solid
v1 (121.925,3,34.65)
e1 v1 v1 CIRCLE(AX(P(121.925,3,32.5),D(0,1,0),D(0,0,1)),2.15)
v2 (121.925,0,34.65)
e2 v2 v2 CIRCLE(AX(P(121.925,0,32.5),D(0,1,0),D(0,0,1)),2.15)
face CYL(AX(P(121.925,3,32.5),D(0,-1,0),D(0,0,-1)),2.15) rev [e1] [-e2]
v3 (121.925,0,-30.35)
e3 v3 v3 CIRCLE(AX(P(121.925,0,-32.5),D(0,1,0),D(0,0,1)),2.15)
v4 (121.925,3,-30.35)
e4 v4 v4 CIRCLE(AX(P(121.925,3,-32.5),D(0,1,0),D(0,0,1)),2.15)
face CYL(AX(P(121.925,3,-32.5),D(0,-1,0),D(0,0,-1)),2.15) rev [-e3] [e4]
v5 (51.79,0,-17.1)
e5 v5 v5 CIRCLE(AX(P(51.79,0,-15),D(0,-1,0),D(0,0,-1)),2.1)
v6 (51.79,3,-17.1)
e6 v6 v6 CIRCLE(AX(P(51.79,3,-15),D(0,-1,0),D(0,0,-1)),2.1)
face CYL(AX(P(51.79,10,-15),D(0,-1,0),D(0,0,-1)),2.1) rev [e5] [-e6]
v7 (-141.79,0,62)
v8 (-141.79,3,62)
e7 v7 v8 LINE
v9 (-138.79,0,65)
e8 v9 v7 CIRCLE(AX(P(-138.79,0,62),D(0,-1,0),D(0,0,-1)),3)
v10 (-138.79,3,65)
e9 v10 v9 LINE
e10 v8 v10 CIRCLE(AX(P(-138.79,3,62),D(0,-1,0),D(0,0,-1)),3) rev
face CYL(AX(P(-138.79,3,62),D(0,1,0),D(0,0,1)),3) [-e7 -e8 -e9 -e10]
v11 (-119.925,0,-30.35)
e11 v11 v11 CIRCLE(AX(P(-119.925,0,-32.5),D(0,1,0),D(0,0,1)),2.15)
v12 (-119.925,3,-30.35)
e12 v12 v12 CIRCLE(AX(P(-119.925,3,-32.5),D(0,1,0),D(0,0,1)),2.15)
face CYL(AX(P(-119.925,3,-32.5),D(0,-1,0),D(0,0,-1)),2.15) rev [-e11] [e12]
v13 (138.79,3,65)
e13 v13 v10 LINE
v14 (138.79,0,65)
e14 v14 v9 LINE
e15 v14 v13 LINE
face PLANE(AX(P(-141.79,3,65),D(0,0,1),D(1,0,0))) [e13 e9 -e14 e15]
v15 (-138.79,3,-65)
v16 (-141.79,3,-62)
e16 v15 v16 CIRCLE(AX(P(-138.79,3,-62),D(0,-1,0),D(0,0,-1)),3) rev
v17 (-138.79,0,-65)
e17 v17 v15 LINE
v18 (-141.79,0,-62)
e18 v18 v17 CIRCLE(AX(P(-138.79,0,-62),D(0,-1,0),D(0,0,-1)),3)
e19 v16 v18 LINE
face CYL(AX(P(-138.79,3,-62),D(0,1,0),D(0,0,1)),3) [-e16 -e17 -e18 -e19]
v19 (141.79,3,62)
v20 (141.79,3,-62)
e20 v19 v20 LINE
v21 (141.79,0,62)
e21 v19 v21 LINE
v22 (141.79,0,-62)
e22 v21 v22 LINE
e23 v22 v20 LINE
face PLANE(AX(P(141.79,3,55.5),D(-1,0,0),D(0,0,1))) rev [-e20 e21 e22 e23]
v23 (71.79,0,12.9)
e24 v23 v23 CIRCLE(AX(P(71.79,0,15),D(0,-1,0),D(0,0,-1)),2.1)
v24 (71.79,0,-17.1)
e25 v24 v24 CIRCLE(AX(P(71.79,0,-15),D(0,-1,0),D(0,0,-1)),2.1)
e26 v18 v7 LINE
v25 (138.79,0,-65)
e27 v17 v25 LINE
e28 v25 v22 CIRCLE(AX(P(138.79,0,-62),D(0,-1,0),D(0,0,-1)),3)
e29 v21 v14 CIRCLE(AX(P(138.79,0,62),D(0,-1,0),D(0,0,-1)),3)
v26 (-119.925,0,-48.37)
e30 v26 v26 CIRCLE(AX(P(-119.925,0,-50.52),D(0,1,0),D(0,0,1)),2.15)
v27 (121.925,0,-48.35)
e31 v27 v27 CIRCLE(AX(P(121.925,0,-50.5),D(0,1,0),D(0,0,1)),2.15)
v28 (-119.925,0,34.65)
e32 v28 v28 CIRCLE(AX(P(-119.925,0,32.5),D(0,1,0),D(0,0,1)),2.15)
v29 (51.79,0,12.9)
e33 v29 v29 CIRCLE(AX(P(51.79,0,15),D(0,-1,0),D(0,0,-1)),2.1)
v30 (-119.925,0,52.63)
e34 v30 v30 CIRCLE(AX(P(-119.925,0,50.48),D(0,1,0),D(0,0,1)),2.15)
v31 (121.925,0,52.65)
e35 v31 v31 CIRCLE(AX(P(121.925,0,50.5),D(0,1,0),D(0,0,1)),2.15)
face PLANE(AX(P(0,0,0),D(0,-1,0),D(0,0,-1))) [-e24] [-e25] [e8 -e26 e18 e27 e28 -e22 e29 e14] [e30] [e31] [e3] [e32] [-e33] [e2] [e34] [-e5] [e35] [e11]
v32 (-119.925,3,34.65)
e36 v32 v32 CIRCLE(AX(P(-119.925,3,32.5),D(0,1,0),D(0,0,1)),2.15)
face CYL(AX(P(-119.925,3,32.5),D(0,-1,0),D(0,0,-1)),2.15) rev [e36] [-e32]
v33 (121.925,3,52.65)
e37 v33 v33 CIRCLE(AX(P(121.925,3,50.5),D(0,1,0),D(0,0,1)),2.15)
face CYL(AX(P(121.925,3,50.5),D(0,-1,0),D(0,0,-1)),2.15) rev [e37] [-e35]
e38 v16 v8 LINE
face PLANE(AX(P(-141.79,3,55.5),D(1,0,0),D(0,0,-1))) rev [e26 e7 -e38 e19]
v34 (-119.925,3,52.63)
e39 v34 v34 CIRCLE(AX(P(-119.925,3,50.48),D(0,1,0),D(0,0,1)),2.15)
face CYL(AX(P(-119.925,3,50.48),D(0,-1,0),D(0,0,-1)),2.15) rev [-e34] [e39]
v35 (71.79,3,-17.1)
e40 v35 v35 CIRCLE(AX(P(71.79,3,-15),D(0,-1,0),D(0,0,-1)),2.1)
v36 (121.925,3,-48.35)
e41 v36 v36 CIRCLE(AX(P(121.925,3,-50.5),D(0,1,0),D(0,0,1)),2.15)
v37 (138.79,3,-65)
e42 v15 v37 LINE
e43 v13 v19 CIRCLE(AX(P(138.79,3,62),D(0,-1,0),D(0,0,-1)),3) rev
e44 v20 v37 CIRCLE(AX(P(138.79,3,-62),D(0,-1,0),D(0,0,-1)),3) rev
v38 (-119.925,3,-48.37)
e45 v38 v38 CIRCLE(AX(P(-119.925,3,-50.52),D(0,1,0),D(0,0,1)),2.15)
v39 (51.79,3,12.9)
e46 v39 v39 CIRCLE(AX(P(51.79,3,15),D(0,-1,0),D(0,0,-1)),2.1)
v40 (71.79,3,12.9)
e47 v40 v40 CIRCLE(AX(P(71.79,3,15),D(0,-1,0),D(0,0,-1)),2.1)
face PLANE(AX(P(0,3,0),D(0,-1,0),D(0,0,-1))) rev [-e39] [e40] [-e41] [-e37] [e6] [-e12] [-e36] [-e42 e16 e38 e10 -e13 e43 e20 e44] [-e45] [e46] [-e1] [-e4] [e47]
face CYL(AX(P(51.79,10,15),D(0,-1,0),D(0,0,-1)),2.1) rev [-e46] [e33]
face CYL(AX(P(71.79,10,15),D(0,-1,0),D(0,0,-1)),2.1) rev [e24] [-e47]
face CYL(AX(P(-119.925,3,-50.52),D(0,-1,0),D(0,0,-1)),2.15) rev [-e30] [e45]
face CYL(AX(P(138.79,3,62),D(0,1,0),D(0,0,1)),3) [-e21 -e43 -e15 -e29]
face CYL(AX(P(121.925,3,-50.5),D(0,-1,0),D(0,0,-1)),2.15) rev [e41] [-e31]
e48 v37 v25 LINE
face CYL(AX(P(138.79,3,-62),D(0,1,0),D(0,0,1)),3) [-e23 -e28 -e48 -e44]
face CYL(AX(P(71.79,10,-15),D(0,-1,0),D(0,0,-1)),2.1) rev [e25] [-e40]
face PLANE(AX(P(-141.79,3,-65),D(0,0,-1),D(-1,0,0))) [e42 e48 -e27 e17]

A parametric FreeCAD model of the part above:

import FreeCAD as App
import Part
import Sketcher

V = App.Vector
Q = App.Units.Quantity


def edges_at(feature, points):
    """Names of the edges that pass closest to the given points."""
    edges = feature.Shape.Edges
    near = lambda p: min(range(len(edges)), key=lambda i: edges[i].distToShape(Part.Vertex(*p))[0])
    return sorted({f"Edge{near(p) + 1}" for p in points})

doc = App.newDocument("Part")
body = doc.addObject("PartDesign::Body", "Body")

sketch1 = body.newObject("Sketcher::SketchObject", "Sketch")
sketch1.AttachmentSupport = (doc.getObject("XZ_Plane"), [""])
sketch1.MapMode = "FlatFace"
sketch1.addGeometry(Part.LineSegment(V(-141.79, -55.5, 0), V(-141.79, 55.5, 0)), False)
sketch1.addGeometry(Part.LineSegment(V(-141.79, 55.5, 0), V(141.79, 55.5, 0)), False)
sketch1.addGeometry(Part.LineSegment(V(141.79, 55.5, 0), V(141.79, -55.5, 0)), False)
sketch1.addGeometry(Part.LineSegment(V(141.79, -55.5, 0), V(-141.79, -55.5, 0)), False)
sketch1.addGeometry(Part.Circle(V(-119.925, 50.48, 0), V(0, 0, 1), 2.15), False)
sketch1.addGeometry(Part.Circle(V(-119.925, 32.5, 0), V(0, 0, 1), 2.15), False)
sketch1.addGeometry(Part.Circle(V(121.925, 50.5, 0), V(0, 0, 1), 2.15), False)
sketch1.addGeometry(Part.Circle(V(121.925, 32.5, 0), V(0, 0, 1), 2.15), False)
sketch1.addGeometry(Part.Circle(V(-119.925, -32.5, 0), V(0, 0, 1), 2.15), False)
sketch1.addGeometry(Part.Circle(V(-119.925, -50.52, 0), V(0, 0, 1), 2.15), False)
sketch1.addGeometry(Part.Circle(V(121.925, -32.5, 0), V(0, 0, 1), 2.15), False)
sketch1.addGeometry(Part.Circle(V(121.925, -50.5, 0), V(0, 0, 1), 2.15), False)
sketch1.addConstraint(Sketcher.Constraint("Coincident", 0, 2, 1, 1))
sketch1.addConstraint(Sketcher.Constraint("Coincident", 1, 2, 2, 1))
sketch1.addConstraint(Sketcher.Constraint("Coincident", 2, 2, 3, 1))
sketch1.addConstraint(Sketcher.Constraint("Coincident", 3, 2, 0, 1))
sketch1.addConstraint(Sketcher.Constraint("Vertical", 0))
sketch1.addConstraint(Sketcher.Constraint("Horizontal", 1))
sketch1.addConstraint(Sketcher.Constraint("Vertical", 2))
sketch1.addConstraint(Sketcher.Constraint("Horizontal", 3))
sketch1.addConstraint(Sketcher.Constraint("Equal", 4, 5))
sketch1.addConstraint(Sketcher.Constraint("Equal", 5, 6))
sketch1.addConstraint(Sketcher.Constraint("Equal", 6, 7))
sketch1.addConstraint(Sketcher.Constraint("Equal", 7, 8))
sketch1.addConstraint(Sketcher.Constraint("Equal", 8, 9))
sketch1.addConstraint(Sketcher.Constraint("Equal", 9, 10))
sketch1.addConstraint(Sketcher.Constraint("Equal", 10, 11))
sketch1.addConstraint(Sketcher.Constraint("Symmetric", 0, 2, 2, 2, -1, 1))
sketch1.addConstraint(Sketcher.Constraint("Symmetric", 5, 3, 8, 3, -1))
sketch1.addConstraint(Sketcher.Constraint("Symmetric", 7, 3, 10, 3, -1))
sketch1.addConstraint(Sketcher.Constraint("Symmetric", 6, 3, 11, 3, -1))
sketch1.addConstraint(Sketcher.Constraint("Horizontal", 5, 3, 7, 3))
sketch1.addConstraint(Sketcher.Constraint("Vertical", 4, 3, 5, 3))
sketch1.addConstraint(Sketcher.Constraint("Vertical", 6, 3, 7, 3))
sketch1.addConstraint(Sketcher.Constraint("Vertical", 8, 3, 9, 3))
sketch1.addConstraint(Sketcher.Constraint("Diameter", 4, Q("4.3 mm")))
sketch1.addConstraint(Sketcher.Constraint("DistanceY", 0, 1, 0, 2, Q("111 mm")))
sketch1.addConstraint(Sketcher.Constraint("DistanceY", 5, 3, 6, 3, Q("18 mm")))
sketch1.addConstraint(Sketcher.Constraint("DistanceY", 8, 3, 5, 3, Q("65 mm")))
sketch1.addConstraint(Sketcher.Constraint("DistanceY", 9, 3, 4, 3, Q("101 mm")))
sketch1.addConstraint(Sketcher.Constraint("DistanceX", 1, 1, 1, 2, Q("283.58 mm")))
sketch1.addConstraint(Sketcher.Constraint("DistanceY", -1, 1, 4, 3, Q("50.48 mm")))
sketch1.addConstraint(Sketcher.Constraint("DistanceX", 4, 3, 6, 3, Q("241.85 mm")))
sketch1.addConstraint(Sketcher.Constraint("DistanceX", 4, 3, -1, 1, Q("119.925 mm")))
pad1 = body.newObject("PartDesign::Pad", "Pad")
pad1.Profile = sketch1
pad1.Length = 3
pad1.Reversed = True

sketch2 = body.newObject("Sketcher::SketchObject", "Sketch001")
sketch2.AttachmentSupport = (doc.getObject("XZ_Plane"), [""])
sketch2.MapMode = "FlatFace"
sketch2.addGeometry(Part.LineSegment(V(141.79, 55.5, 0), V(141.79, 65, 0)), False)
sketch2.addGeometry(Part.LineSegment(V(141.79, 65, 0), V(-141.79, 65, 0)), False)
sketch2.addGeometry(Part.LineSegment(V(-141.79, 65, 0), V(-141.79, 55.5, 0)), False)
sketch2.addGeometry(Part.LineSegment(V(-141.79, 55.5, 0), V(141.79, 55.5, 0)), False)
sketch2.addGeometry(Part.LineSegment(V(141.79, -65, 0), V(141.79, -55.5, 0)), False)
sketch2.addGeometry(Part.LineSegment(V(141.79, -55.5, 0), V(-141.79, -55.5, 0)), False)
sketch2.addGeometry(Part.LineSegment(V(-141.79, -55.5, 0), V(-141.79, -65, 0)), False)
sketch2.addGeometry(Part.LineSegment(V(-141.79, -65, 0), V(141.79, -65, 0)), False)
sketch2.addConstraint(Sketcher.Constraint("Coincident", 0, 2, 1, 1))
sketch2.addConstraint(Sketcher.Constraint("Coincident", 1, 2, 2, 1))
sketch2.addConstraint(Sketcher.Constraint("Coincident", 2, 2, 3, 1))
sketch2.addConstraint(Sketcher.Constraint("Coincident", 3, 2, 0, 1))
sketch2.addConstraint(Sketcher.Constraint("Coincident", 4, 2, 5, 1))
sketch2.addConstraint(Sketcher.Constraint("Coincident", 5, 2, 6, 1))
sketch2.addConstraint(Sketcher.Constraint("Coincident", 6, 2, 7, 1))
sketch2.addConstraint(Sketcher.Constraint("Coincident", 7, 2, 4, 1))
sketch2.addConstraint(Sketcher.Constraint("Vertical", 0))
sketch2.addConstraint(Sketcher.Constraint("Horizontal", 1))
sketch2.addConstraint(Sketcher.Constraint("Vertical", 2))
sketch2.addConstraint(Sketcher.Constraint("Horizontal", 3))
sketch2.addConstraint(Sketcher.Constraint("Vertical", 4))
sketch2.addConstraint(Sketcher.Constraint("Horizontal", 5))
sketch2.addConstraint(Sketcher.Constraint("Vertical", 6))
sketch2.addConstraint(Sketcher.Constraint("Horizontal", 7))
sketch2.addConstraint(Sketcher.Constraint("Symmetric", 2, 2, 4, 2, -1, 1))
sketch2.addConstraint(Sketcher.Constraint("Symmetric", 0, 2, 6, 2, -1, 1))
sketch2.addConstraint(Sketcher.Constraint("Vertical", 3, 2, 4, 2))
sketch2.addConstraint(Sketcher.Constraint("DistanceY", 0, 1, 0, 2, Q("9.5 mm")))
sketch2.addConstraint(Sketcher.Constraint("DistanceY", -1, 1, 0, 2, Q("65 mm")))
sketch2.addConstraint(Sketcher.Constraint("DistanceX", 1, 2, 1, 1, Q("283.58 mm")))
pad2 = body.newObject("PartDesign::Pad", "Pad001")
pad2.Profile = sketch2
pad2.Length = 3
pad2.Reversed = True
doc.recompute()

fillet = body.newObject("PartDesign::Fillet", "Fillet")
fillet.Base = (pad2, edges_at(pad2, [
    (-141.79, 1.5, 65),
    (141.79, 1.5, 65),
    (-141.79, 1.5, -65),
    (141.79, 1.5, -65),
]))
fillet.Radius = 3

sketch3 = body.newObject("Sketcher::SketchObject", "Sketch002")
sketch3.AttachmentSupport = (doc.getObject("XZ_Plane"), [""])
sketch3.MapMode = "FlatFace"
sketch3.addGeometry(Part.Circle(V(71.79, 15, 0), V(0, 0, 1), 2.1), False)
sketch3.addGeometry(Part.Circle(V(51.79, 15, 0), V(0, 0, 1), 2.1), False)
sketch3.addGeometry(Part.Circle(V(51.79, -15, 0), V(0, 0, 1), 2.1), False)
sketch3.addGeometry(Part.Circle(V(71.79, -15, 0), V(0, 0, 1), 2.1), False)
sketch3.addConstraint(Sketcher.Constraint("Equal", 0, 1))
sketch3.addConstraint(Sketcher.Constraint("Equal", 1, 2))
sketch3.addConstraint(Sketcher.Constraint("Equal", 2, 3))
sketch3.addConstraint(Sketcher.Constraint("Symmetric", 1, 3, 2, 3, -1))
sketch3.addConstraint(Sketcher.Constraint("Symmetric", 0, 3, 3, 3, -1))
sketch3.addConstraint(Sketcher.Constraint("Horizontal", 0, 3, 1, 3))
sketch3.addConstraint(Sketcher.Constraint("Diameter", 0, Q("4.2 mm")))
sketch3.addConstraint(Sketcher.Constraint("DistanceY", -1, 1, 0, 3, Q("15 mm")))
sketch3.addConstraint(Sketcher.Constraint("DistanceX", 1, 3, 0, 3, Q("20 mm")))
sketch3.addConstraint(Sketcher.Constraint("DistanceX", -1, 1, 0, 3, Q("71.79 mm")))
pocket1 = body.newObject("PartDesign::Pocket", "Pocket")
pocket1.Profile = sketch3
pocket1.Length = 10

doc.recompute()
